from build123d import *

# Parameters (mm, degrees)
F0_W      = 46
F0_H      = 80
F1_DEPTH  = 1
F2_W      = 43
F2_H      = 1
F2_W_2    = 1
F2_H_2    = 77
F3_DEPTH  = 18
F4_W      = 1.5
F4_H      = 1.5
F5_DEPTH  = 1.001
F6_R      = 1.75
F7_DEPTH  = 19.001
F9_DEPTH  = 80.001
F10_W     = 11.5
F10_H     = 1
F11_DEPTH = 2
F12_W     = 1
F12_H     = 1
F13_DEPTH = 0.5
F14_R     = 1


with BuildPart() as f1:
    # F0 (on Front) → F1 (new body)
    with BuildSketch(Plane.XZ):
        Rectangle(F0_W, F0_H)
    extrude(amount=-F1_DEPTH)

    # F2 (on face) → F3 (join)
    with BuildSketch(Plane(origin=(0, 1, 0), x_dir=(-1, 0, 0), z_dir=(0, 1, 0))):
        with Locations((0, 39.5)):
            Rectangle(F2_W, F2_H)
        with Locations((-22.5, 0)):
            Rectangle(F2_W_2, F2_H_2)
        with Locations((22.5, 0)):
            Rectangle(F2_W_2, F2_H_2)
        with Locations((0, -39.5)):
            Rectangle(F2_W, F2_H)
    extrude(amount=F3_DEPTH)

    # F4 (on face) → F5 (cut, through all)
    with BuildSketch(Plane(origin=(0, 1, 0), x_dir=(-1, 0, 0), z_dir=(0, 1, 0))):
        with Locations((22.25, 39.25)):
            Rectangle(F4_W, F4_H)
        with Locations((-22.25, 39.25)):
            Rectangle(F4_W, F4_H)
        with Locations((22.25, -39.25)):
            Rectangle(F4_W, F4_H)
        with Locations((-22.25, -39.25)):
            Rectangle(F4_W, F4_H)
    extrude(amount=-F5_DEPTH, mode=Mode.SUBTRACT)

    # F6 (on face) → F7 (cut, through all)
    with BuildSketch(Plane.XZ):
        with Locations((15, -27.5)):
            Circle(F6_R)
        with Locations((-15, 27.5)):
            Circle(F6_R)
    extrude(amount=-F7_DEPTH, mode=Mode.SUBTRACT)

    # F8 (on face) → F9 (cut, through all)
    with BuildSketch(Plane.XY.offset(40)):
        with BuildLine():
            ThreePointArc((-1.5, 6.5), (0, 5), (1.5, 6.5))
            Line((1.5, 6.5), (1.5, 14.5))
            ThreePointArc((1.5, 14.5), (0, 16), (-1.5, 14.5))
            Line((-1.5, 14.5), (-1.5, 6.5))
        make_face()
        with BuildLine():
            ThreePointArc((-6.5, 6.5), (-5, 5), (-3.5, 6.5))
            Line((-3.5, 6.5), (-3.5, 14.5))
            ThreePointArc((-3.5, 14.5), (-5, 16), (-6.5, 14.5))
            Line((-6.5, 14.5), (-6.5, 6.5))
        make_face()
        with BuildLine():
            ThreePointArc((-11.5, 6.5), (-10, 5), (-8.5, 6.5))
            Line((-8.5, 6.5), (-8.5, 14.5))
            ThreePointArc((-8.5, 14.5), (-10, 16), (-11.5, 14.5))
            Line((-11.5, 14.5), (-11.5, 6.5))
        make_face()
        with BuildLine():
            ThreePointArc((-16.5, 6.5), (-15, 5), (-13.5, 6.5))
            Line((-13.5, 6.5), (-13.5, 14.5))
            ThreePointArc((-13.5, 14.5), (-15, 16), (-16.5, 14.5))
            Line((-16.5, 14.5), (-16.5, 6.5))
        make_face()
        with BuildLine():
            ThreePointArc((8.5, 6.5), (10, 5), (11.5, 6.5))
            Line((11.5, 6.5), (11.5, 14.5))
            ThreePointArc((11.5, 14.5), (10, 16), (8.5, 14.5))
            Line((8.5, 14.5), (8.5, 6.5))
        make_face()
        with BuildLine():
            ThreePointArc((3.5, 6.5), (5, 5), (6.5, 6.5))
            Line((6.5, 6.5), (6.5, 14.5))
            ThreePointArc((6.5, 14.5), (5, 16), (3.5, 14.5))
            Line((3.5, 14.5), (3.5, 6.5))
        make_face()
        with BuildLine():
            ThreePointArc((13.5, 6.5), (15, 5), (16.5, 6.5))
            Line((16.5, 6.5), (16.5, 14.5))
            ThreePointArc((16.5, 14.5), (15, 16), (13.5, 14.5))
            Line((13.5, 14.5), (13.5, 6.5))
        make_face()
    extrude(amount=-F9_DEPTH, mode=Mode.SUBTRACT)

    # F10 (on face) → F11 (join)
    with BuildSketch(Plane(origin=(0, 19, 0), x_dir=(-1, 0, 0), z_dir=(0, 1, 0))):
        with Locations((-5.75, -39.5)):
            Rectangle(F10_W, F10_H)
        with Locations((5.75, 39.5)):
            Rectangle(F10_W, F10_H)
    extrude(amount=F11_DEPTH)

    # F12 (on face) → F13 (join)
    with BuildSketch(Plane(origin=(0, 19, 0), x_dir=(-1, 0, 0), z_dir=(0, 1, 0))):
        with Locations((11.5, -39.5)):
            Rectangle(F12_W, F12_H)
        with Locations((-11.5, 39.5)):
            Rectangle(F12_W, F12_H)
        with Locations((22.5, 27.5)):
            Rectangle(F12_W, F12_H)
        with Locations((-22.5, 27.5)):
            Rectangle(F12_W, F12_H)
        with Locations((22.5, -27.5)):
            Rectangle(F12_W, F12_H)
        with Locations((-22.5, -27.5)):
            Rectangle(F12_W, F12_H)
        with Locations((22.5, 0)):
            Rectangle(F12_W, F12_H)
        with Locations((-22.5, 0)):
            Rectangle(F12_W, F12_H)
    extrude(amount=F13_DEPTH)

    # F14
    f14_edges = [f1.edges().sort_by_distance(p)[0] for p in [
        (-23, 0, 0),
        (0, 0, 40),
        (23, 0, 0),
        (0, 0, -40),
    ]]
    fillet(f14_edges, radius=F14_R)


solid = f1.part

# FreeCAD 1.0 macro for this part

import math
import FreeCAD as App
import Part
import Sketcher
from FreeCAD import Vector
Q = App.Units.Quantity


def edges_at(feature, points):
    """Names of the edges that pass closest to the given points."""
    edges = feature.Shape.Edges
    near = lambda p: min(range(len(edges)), key=lambda i: edges[i].distToShape(Part.Vertex(*p))[0])
    return sorted({f"Edge{near(p) + 1}" for p in points})

doc = App.newDocument("Part")
body = doc.addObject("PartDesign::Body", "Body")

sketch1 = body.newObject("Sketcher::SketchObject", "Sketch")
sketch1.AttachmentSupport = (doc.getObject("XZ_Plane"), [""])
sketch1.MapMode = "FlatFace"
sketch1.addGeometry([
    Part.LineSegment(Vector(-23, 40, 0), Vector(-23, -40, 0)),
    Part.LineSegment(Vector(-23, -40, 0), Vector(23, -40, 0)),
    Part.LineSegment(Vector(23, -40, 0), Vector(23, 40, 0)),
    Part.LineSegment(Vector(23, 40, 0), Vector(-23, 40, 0)),
], False)
sketch1.addConstraint([
    Sketcher.Constraint("Coincident", 0, 2, 1, 1),
    Sketcher.Constraint("Coincident", 1, 2, 2, 1),
    Sketcher.Constraint("Coincident", 2, 2, 3, 1),
    Sketcher.Constraint("Coincident", 3, 2, 0, 1),
    Sketcher.Constraint("Vertical", 0),
    Sketcher.Constraint("Horizontal", 1),
    Sketcher.Constraint("Vertical", 2),
    Sketcher.Constraint("Horizontal", 3),
    Sketcher.Constraint("Symmetric", 0, 2, 2, 2, -1, 1),
    Sketcher.Constraint("DistanceX", 1, 1, 1, 2, Q("46 mm")),
    Sketcher.Constraint("DistanceY", 0, 2, 0, 1, Q("80 mm")),
])
pad1 = body.newObject("PartDesign::Pad", "Pad")
pad1.Profile = sketch1
pad1.Length = 1
pad1.Reversed = True

sketch2 = body.newObject("Sketcher::SketchObject", "Sketch001")
sketch2.AttachmentSupport = (doc.getObject("XZ_Plane"), [""])
sketch2.MapMode = "FlatFace"
sketch2.AttachmentOffset = App.Placement(Vector(0, 0, -1), App.Rotation())
sketch2.addGeometry([
    Part.LineSegment(Vector(21.5, 40, 0), Vector(21.5, 39, 0)),
    Part.LineSegment(Vector(21.5, 39, 0), Vector(-21.5, 39, 0)),
    Part.LineSegment(Vector(-21.5, 39, 0), Vector(-21.5, 40, 0)),
    Part.LineSegment(Vector(-21.5, 40, 0), Vector(21.5, 40, 0)),
    Part.LineSegment(Vector(23, 38.5, 0), Vector(23, -38.5, 0)),
    Part.LineSegment(Vector(23, -38.5, 0), Vector(22, -38.5, 0)),
    Part.LineSegment(Vector(22, -38.5, 0), Vector(22, 38.5, 0)),
    Part.LineSegment(Vector(22, 38.5, 0), Vector(23, 38.5, 0)),
    Part.LineSegment(Vector(-22, 38.5, 0), Vector(-22, -38.5, 0)),
    Part.LineSegment(Vector(-22, -38.5, 0), Vector(-23, -38.5, 0)),
    Part.LineSegment(Vector(-23, -38.5, 0), Vector(-23, 38.5, 0)),
    Part.LineSegment(Vector(-23, 38.5, 0), Vector(-22, 38.5, 0)),
    Part.LineSegment(Vector(21.5, -39, 0), Vector(21.5, -40, 0)),
    Part.LineSegment(Vector(21.5, -40, 0), Vector(-21.5, -40, 0)),
    Part.LineSegment(Vector(-21.5, -40, 0), Vector(-21.5, -39, 0)),
    Part.LineSegment(Vector(-21.5, -39, 0), Vector(21.5, -39, 0)),
], False)
sketch2.addConstraint([
    Sketcher.Constraint("Coincident", 0, 2, 1, 1),
    Sketcher.Constraint("Coincident", 1, 2, 2, 1),
    Sketcher.Constraint("Coincident", 2, 2, 3, 1),
    Sketcher.Constraint("Coincident", 3, 2, 0, 1),
    Sketcher.Constraint("Coincident", 4, 2, 5, 1),
    Sketcher.Constraint("Coincident", 5, 2, 6, 1),
    Sketcher.Constraint("Coincident", 6, 2, 7, 1),
    Sketcher.Constraint("Coincident", 7, 2, 4, 1),
    Sketcher.Constraint("Coincident", 8, 2, 9, 1),
    Sketcher.Constraint("Coincident", 9, 2, 10, 1),
    Sketcher.Constraint("Coincident", 10, 2, 11, 1),
    Sketcher.Constraint("Coincident", 11, 2, 8, 1),
    Sketcher.Constraint("Coincident", 12, 2, 13, 1),
    Sketcher.Constraint("Coincident", 13, 2, 14, 1),
    Sketcher.Constraint("Coincident", 14, 2, 15, 1),
    Sketcher.Constraint("Coincident", 15, 2, 12, 1),
    Sketcher.Constraint("Vertical", 0),
    Sketcher.Constraint("Horizontal", 1),
    Sketcher.Constraint("Vertical", 2),
    Sketcher.Constraint("Horizontal", 3),
    Sketcher.Constraint("Vertical", 4),
    Sketcher.Constraint("Horizontal", 5),
    Sketcher.Constraint("Vertical", 6),
    Sketcher.Constraint("Horizontal", 7),
    Sketcher.Constraint("Vertical", 8),
    Sketcher.Constraint("Horizontal", 9),
    Sketcher.Constraint("Vertical", 10),
    Sketcher.Constraint("Horizontal", 11),
    Sketcher.Constraint("Vertical", 12),
    Sketcher.Constraint("Horizontal", 13),
    Sketcher.Constraint("Vertical", 14),
    Sketcher.Constraint("Horizontal", 15),
    Sketcher.Constraint("Symmetric", 6, 2, 8, 2, -1, 1),
    Sketcher.Constraint("Symmetric", 4, 2, 10, 2, -1, 1),
    Sketcher.Constraint("Symmetric", 2, 2, 12, 2, -1, 1),
    Sketcher.Constraint("Symmetric", 0, 2, 14, 2, -1, 1),
    Sketcher.Constraint("Horizontal", 5, 2, 8, 2),
    Sketcher.Constraint("Vertical", 3, 2, 12, 2),
    Sketcher.Constraint("Equal", 11, 0),
    Sketcher.Constraint("DistanceX", 1, 2, 1, 1, Q("43 mm")),
    Sketcher.Constraint("DistanceX", 5, 2, 5, 1, Q("1 mm")),
    Sketcher.Constraint("DistanceY", 4, 2, 4, 1, Q("77 mm")),
    Sketcher.Constraint("DistanceY", -1, 1, 0, 2, Q("39 mm")),
    Sketcher.Constraint("DistanceX", -1, 1, 4, 2, Q("23 mm")),
])
pad2 = body.newObject("PartDesign::Pad", "Pad001")
pad2.Profile = sketch2
pad2.Length = 18
pad2.Reversed = True

sketch3 = body.newObject("Sketcher::SketchObject", "Sketch002")
sketch3.AttachmentSupport = (doc.getObject("XZ_Plane"), [""])
sketch3.MapMode = "FlatFace"
sketch3.AttachmentOffset = App.Placement(Vector(0, 0, -1), App.Rotation())
sketch3.addGeometry([
    Part.LineSegment(Vector(-21.5, 40, 0), Vector(-21.5, 38.5, 0)),
    Part.LineSegment(Vector(-21.5, 38.5, 0), Vector(-23, 38.5, 0)),
    Part.LineSegment(Vector(-23, 38.5, 0), Vector(-23, 40, 0)),
    Part.LineSegment(Vector(-23, 40, 0), Vector(-21.5, 40, 0)),
    Part.LineSegment(Vector(23, 40, 0), Vector(23, 38.5, 0)),
    Part.LineSegment(Vector(23, 38.5, 0), Vector(21.5, 38.5, 0)),
    Part.LineSegment(Vector(21.5, 38.5, 0), Vector(21.5, 40, 0)),
    Part.LineSegment(Vector(21.5, 40, 0), Vector(23, 40, 0)),
    Part.LineSegment(Vector(-21.5, -38.5, 0), Vector(-21.5, -40, 0)),
    Part.LineSegment(Vector(-21.5, -40, 0), Vector(-23, -40, 0)),
    Part.LineSegment(Vector(-23, -40, 0), Vector(-23, -38.5, 0)),
    Part.LineSegment(Vector(-23, -38.5, 0), Vector(-21.5, -38.5, 0)),
    Part.LineSegment(Vector(23, -38.5, 0), Vector(23, -40, 0)),
    Part.LineSegment(Vector(23, -40, 0), Vector(21.5, -40, 0)),
    Part.LineSegment(Vector(21.5, -40, 0), Vector(21.5, -38.5, 0)),
    Part.LineSegment(Vector(21.5, -38.5, 0), Vector(23, -38.5, 0)),
], False)
sketch3.addConstraint([
    Sketcher.Constraint("Coincident", 0, 2, 1, 1),
    Sketcher.Constraint("Coincident", 1, 2, 2, 1),
    Sketcher.Constraint("Coincident", 2, 2, 3, 1),
    Sketcher.Constraint("Coincident", 3, 2, 0, 1),
    Sketcher.Constraint("Coincident", 4, 2, 5, 1),
    Sketcher.Constraint("Coincident", 5, 2, 6, 1),
    Sketcher.Constraint("Coincident", 6, 2, 7, 1),
    Sketcher.Constraint("Coincident", 7, 2, 4, 1),
    Sketcher.Constraint("Coincident", 8, 2, 9, 1),
    Sketcher.Constraint("Coincident", 9, 2, 10, 1),
    Sketcher.Constraint("Coincident", 10, 2, 11, 1),
    Sketcher.Constraint("Coincident", 11, 2, 8, 1),
    Sketcher.Constraint("Coincident", 12, 2, 13, 1),
    Sketcher.Constraint("Coincident", 13, 2, 14, 1),
    Sketcher.Constraint("Coincident", 14, 2, 15, 1),
    Sketcher.Constraint("Coincident", 15, 2, 12, 1),
    Sketcher.Constraint("Vertical", 0),
    Sketcher.Constraint("Horizontal", 1),
    Sketcher.Constraint("Vertical", 2),
    Sketcher.Constraint("Horizontal", 3),
    Sketcher.Constraint("Vertical", 4),
    Sketcher.Constraint("Horizontal", 5),
    Sketcher.Constraint("Vertical", 6),
    Sketcher.Constraint("Horizontal", 7),
    Sketcher.Constraint("Vertical", 8),
    Sketcher.Constraint("Horizontal", 9),
    Sketcher.Constraint("Vertical", 10),
    Sketcher.Constraint("Horizontal", 11),
    Sketcher.Constraint("Vertical", 12),
    Sketcher.Constraint("Horizontal", 13),
    Sketcher.Constraint("Vertical", 14),
    Sketcher.Constraint("Horizontal", 15),
    Sketcher.Constraint("Symmetric", 6, 2, 8, 2, -1, 1),
    Sketcher.Constraint("Symmetric", 4, 2, 10, 2, -1, 1),
    Sketcher.Constraint("Symmetric", 2, 2, 12, 2, -1, 1),
    Sketcher.Constraint("Symmetric", 0, 2, 14, 2, -1, 1),
    Sketcher.Constraint("Symmetric", 1, 2, 4, 2, -2),
    Sketcher.Constraint("Symmetric", 3, 2, 6, 2, -2),
    Sketcher.Constraint("Equal", 15, 0),
    Sketcher.Constraint("DistanceX", 1, 2, 1, 1, Q("1.5 mm")),
    Sketcher.Constraint("DistanceX", 1, 2, -1, 1, Q("23 mm")),
    Sketcher.Constraint("DistanceY", -1, 1, 2, 2, Q("40 mm")),
])
pocket1 = body.newObject("PartDesign::Pocket", "Pocket")
pocket1.Profile = sketch3
pocket1.Type = "ThroughAll"
pocket1.Reversed = True

sketch4 = body.newObject("Sketcher::SketchObject", "Sketch003")
sketch4.AttachmentSupport = (doc.getObject("XZ_Plane"), [""])
sketch4.MapMode = "FlatFace"
sketch4.addGeometry([
    Part.Circle(Vector(15, -27.5, 0), Vector(0, 0, 1), 1.8),
    Part.Circle(Vector(-15, 27.5, 0), Vector(0, 0, 1), 1.8),
], False)
sketch4.addConstraint([
    Sketcher.Constraint("Equal", 0, 1),
    Sketcher.Constraint("Symmetric", 0, 3, 1, 3, -1, 1),
    Sketcher.Constraint("Diameter", 0, Q("3.5 mm")),
    Sketcher.Constraint("DistanceX", -1, 1, 0, 3, Q("15 mm")),
    Sketcher.Constraint("DistanceY", 0, 3, 1, 3, Q("55 mm")),
])
pocket2 = body.newObject("PartDesign::Pocket", "Pocket001")
pocket2.Profile = sketch4
pocket2.Type = "ThroughAll"

sketch5 = body.newObject("Sketcher::SketchObject", "Sketch004")
sketch5.AttachmentSupport = (doc.getObject("XY_Plane"), [""])
sketch5.MapMode = "FlatFace"
sketch5.AttachmentOffset = App.Placement(Vector(0, 0, 40), App.Rotation())
sketch5.addGeometry([
    Part.ArcOfCircle(Part.Circle(Vector(0, 6.5, 0), Vector(0, 0, 1), 1.5), math.radians(180), math.radians(360)),
    Part.LineSegment(Vector(1.5, 6.5, 0), Vector(1.5, 14.5, 0)),
    Part.ArcOfCircle(Part.Circle(Vector(0, 14.5, 0), Vector(0, 0, 1), 1.5), math.radians(0), math.radians(180)),
    Part.LineSegment(Vector(-1.5, 14.5, 0), Vector(-1.5, 6.5, 0)),
    Part.ArcOfCircle(Part.Circle(Vector(-5, 6.5, 0), Vector(0, 0, 1), 1.5), math.radians(180), math.radians(360)),
    Part.LineSegment(Vector(-3.5, 6.5, 0), Vector(-3.5, 14.5, 0)),
    Part.ArcOfCircle(Part.Circle(Vector(-5, 14.5, 0), Vector(0, 0, 1), 1.5), math.radians(0), math.radians(180)),
    Part.LineSegment(Vector(-6.5, 14.5, 0), Vector(-6.5, 6.5, 0)),
    Part.ArcOfCircle(Part.Circle(Vector(-10, 6.5, 0), Vector(0, 0, 1), 1.5), math.radians(180), math.radians(360)),
    Part.LineSegment(Vector(-8.5, 6.5, 0), Vector(-8.5, 14.5, 0)),
    Part.ArcOfCircle(Part.Circle(Vector(-10, 14.5, 0), Vector(0, 0, 1), 1.5), math.radians(0), math.radians(180)),
    Part.LineSegment(Vector(-11.5, 14.5, 0), Vector(-11.5, 6.5, 0)),
    Part.ArcOfCircle(Part.Circle(Vector(-15, 6.5, 0), Vector(0, 0, 1), 1.5), math.radians(180), math.radians(360)),
    Part.LineSegment(Vector(-13.5, 6.5, 0), Vector(-13.5, 14.5, 0)),
    Part.ArcOfCircle(Part.Circle(Vector(-15, 14.5, 0), Vector(0, 0, 1), 1.5), math.radians(0), math.radians(180)),
    Part.LineSegment(Vector(-16.5, 14.5, 0), Vector(-16.5, 6.5, 0)),
    Part.ArcOfCircle(Part.Circle(Vector(10, 6.5, 0), Vector(0, 0, 1), 1.5), math.radians(180), math.radians(360)),
    Part.LineSegment(Vector(11.5, 6.5, 0), Vector(11.5, 14.5, 0)),
    Part.ArcOfCircle(Part.Circle(Vector(10, 14.5, 0), Vector(0, 0, 1), 1.5), math.radians(0), math.radians(180)),
    Part.LineSegment(Vector(8.5, 14.5, 0), Vector(8.5, 6.5, 0)),
    Part.ArcOfCircle(Part.Circle(Vector(5, 6.5, 0), Vector(0, 0, 1), 1.5), math.radians(180), math.radians(360)),
    Part.LineSegment(Vector(6.5, 6.5, 0), Vector(6.5, 14.5, 0)),
    Part.ArcOfCircle(Part.Circle(Vector(5, 14.5, 0), Vector(0, 0, 1), 1.5), math.radians(0), math.radians(180)),
    Part.LineSegment(Vector(3.5, 14.5, 0), Vector(3.5, 6.5, 0)),
    Part.ArcOfCircle(Part.Circle(Vector(15, 6.5, 0), Vector(0, 0, 1), 1.5), math.radians(180), math.radians(360)),
    Part.LineSegment(Vector(16.5, 6.5, 0), Vector(16.5, 14.5, 0)),
    Part.ArcOfCircle(Part.Circle(Vector(15, 14.5, 0), Vector(0, 0, 1), 1.5), math.radians(0), math.radians(180)),
    Part.LineSegment(Vector(13.5, 14.5, 0), Vector(13.5, 6.5, 0)),
], False)
sketch5.addConstraint([
    Sketcher.Constraint("Tangent", 0, 2, 1, 1),
    Sketcher.Constraint("Tangent", 1, 2, 2, 1),
    Sketcher.Constraint("Tangent", 2, 2, 3, 1),
    Sketcher.Constraint("Tangent", 3, 2, 0, 1),
    Sketcher.Constraint("Tangent", 4, 2, 5, 1),
    Sketcher.Constraint("Tangent", 5, 2, 6, 1),
    Sketcher.Constraint("Tangent", 6, 2, 7, 1),
    Sketcher.Constraint("Tangent", 7, 2, 4, 1),
    Sketcher.Constraint("Tangent", 8, 2, 9, 1),
    Sketcher.Constraint("Tangent", 9, 2, 10, 1),
    Sketcher.Constraint("Tangent", 10, 2, 11, 1),
    Sketcher.Constraint("Tangent", 11, 2, 8, 1),
    Sketcher.Constraint("Tangent", 12, 2, 13, 1),
    Sketcher.Constraint("Tangent", 13, 2, 14, 1),
    Sketcher.Constraint("Tangent", 14, 2, 15, 1),
    Sketcher.Constraint("Tangent", 15, 2, 12, 1),
    Sketcher.Constraint("Tangent", 16, 2, 17, 1),
    Sketcher.Constraint("Tangent", 17, 2, 18, 1),
    Sketcher.Constraint("Tangent", 18, 2, 19, 1),
    Sketcher.Constraint("Tangent", 19, 2, 16, 1),
    Sketcher.Constraint("Tangent", 20, 2, 21, 1),
    Sketcher.Constraint("Tangent", 21, 2, 22, 1),
    Sketcher.Constraint("Tangent", 22, 2, 23, 1),
    Sketcher.Constraint("Tangent", 23, 2, 20, 1),
    Sketcher.Constraint("Tangent", 24, 2, 25, 1),
    Sketcher.Constraint("Tangent", 25, 2, 26, 1),
    Sketcher.Constraint("Tangent", 26, 2, 27, 1),
    Sketcher.Constraint("Tangent", 27, 2, 24, 1),
    Sketcher.Constraint("Vertical", 1),
    Sketcher.Constraint("Vertical", 3),
    Sketcher.Constraint("Vertical", 5),
    Sketcher.Constraint("Vertical", 7),
    Sketcher.Constraint("Vertical", 9),
    Sketcher.Constraint("Vertical", 11),
    Sketcher.Constraint("Vertical", 13),
    Sketcher.Constraint("Vertical", 15),
    Sketcher.Constraint("Vertical", 17),
    Sketcher.Constraint("Vertical", 19),
    Sketcher.Constraint("Vertical", 21),
    Sketcher.Constraint("Vertical", 23),
    Sketcher.Constraint("Vertical", 25),
    Sketcher.Constraint("Vertical", 27),
    Sketcher.Constraint("Equal", 2, 4),
    Sketcher.Constraint("Equal", 6, 8),
    Sketcher.Constraint("Equal", 10, 12),
    Sketcher.Constraint("Equal", 14, 16),
    Sketcher.Constraint("Equal", 18, 20),
    Sketcher.Constraint("Equal", 22, 24),
    Sketcher.Constraint("Symmetric", 8, 3, 16, 3, -2),
    Sketcher.Constraint("Symmetric", 4, 3, 20, 3, -2),
    Sketcher.Constraint("Symmetric", 12, 3, 24, 3, -2),
    Sketcher.Constraint("PointOnObject", 0, 3, -2),
    Sketcher.Constraint("Horizontal", 0, 3, 4, 3),
    Sketcher.Constraint("Horizontal", 2, 3, 6, 3),
    Sketcher.Constraint("Horizontal", 4, 3, 8, 3),
    Sketcher.Constraint("Horizontal", 6, 3, 10, 3),
    Sketcher.Constraint("Horizontal", 8, 3, 12, 3),
    Sketcher.Constraint("Horizontal", 10, 3, 14, 3),
    Sketcher.Constraint("Horizontal", 14, 3, 18, 3),
    Sketcher.Constraint("Horizontal", 18, 3, 22, 3),
    Sketcher.Constraint("Horizontal", 22, 3, 26, 3),
    Sketcher.Constraint("Radius", 0, Q("1.5 mm")),
    Sketcher.Constraint("DistanceY", 1, 1, 1, 2, Q("8 mm")),
    Sketcher.Constraint("DistanceX", 4, 3, -1, 1, Q("5 mm")),
    Sketcher.Constraint("DistanceX", 8, 3, -1, 1, Q("10 mm")),
    Sketcher.Constraint("DistanceX", 12, 3, -1, 1, Q("15 mm")),
    Sketcher.Constraint("DistanceY", -1, 1, 0, 3, Q("6.5 mm")),
])
pocket3 = body.newObject("PartDesign::Pocket", "Pocket002")
pocket3.Profile = sketch5
pocket3.Type = "ThroughAll"

sketch6 = body.newObject("Sketcher::SketchObject", "Sketch005")
sketch6.AttachmentSupport = (doc.getObject("XZ_Plane"), [""])
sketch6.MapMode = "FlatFace"
sketch6.AttachmentOffset = App.Placement(Vector(0, 0, -19), App.Rotation())
sketch6.addGeometry([
    Part.LineSegment(Vector(11.5, -39, 0), Vector(11.5, -40, 0)),
    Part.LineSegment(Vector(11.5, -40, 0), Vector(0, -40, 0)),
    Part.LineSegment(Vector(0, -40, 0), Vector(0, -39, 0)),
    Part.LineSegment(Vector(0, -39, 0), Vector(11.5, -39, 0)),
    Part.LineSegment(Vector(0, 40, 0), Vector(0, 39, 0)),
    Part.LineSegment(Vector(0, 39, 0), Vector(-11.5, 39, 0)),
    Part.LineSegment(Vector(-11.5, 39, 0), Vector(-11.5, 40, 0)),
    Part.LineSegment(Vector(-11.5, 40, 0), Vector(0, 40, 0)),
], False)
sketch6.addConstraint([
    Sketcher.Constraint("Coincident", 0, 2, 1, 1),
    Sketcher.Constraint("Coincident", 1, 2, 2, 1),
    Sketcher.Constraint("Coincident", 2, 2, 3, 1),
    Sketcher.Constraint("Coincident", 3, 2, 0, 1),
    Sketcher.Constraint("Coincident", 4, 2, 5, 1),
    Sketcher.Constraint("Coincident", 5, 2, 6, 1),
    Sketcher.Constraint("Coincident", 6, 2, 7, 1),
    Sketcher.Constraint("Coincident", 7, 2, 4, 1),
    Sketcher.Constraint("Vertical", 0),
    Sketcher.Constraint("Horizontal", 1),
    Sketcher.Constraint("Vertical", 2),
    Sketcher.Constraint("Horizontal", 3),
    Sketcher.Constraint("Vertical", 4),
    Sketcher.Constraint("Horizontal", 5),
    Sketcher.Constraint("Vertical", 6),
    Sketcher.Constraint("Horizontal", 7),
    Sketcher.Constraint("Symmetric", 2, 2, 4, 2, -1, 1),
    Sketcher.Constraint("Symmetric", 0, 2, 6, 2, -1, 1),
    Sketcher.Constraint("PointOnObject", 1, 2, -2),
    Sketcher.Constraint("DistanceY", 0, 2, 0, 1, Q("1 mm")),
    Sketcher.Constraint("DistanceX", 1, 2, 1, 1, Q("11.5 mm")),
    Sketcher.Constraint("DistanceY", 0, 2, -1, 1, Q("40 mm")),
])
pad3 = body.newObject("PartDesign::Pad", "Pad002")
pad3.Profile = sketch6
pad3.Length = 2
pad3.Reversed = True

sketch7 = body.newObject("Sketcher::SketchObject", "Sketch006")
sketch7.AttachmentSupport = (doc.getObject("XZ_Plane"), [""])
sketch7.MapMode = "FlatFace"
sketch7.AttachmentOffset = App.Placement(Vector(0, 0, -19), App.Rotation())
sketch7.addGeometry([
    Part.LineSegment(Vector(-11, -39, 0), Vector(-11, -40, 0)),
    Part.LineSegment(Vector(-11, -40, 0), Vector(-12, -40, 0)),
    Part.LineSegment(Vector(-12, -40, 0), Vector(-12, -39, 0)),
    Part.LineSegment(Vector(-12, -39, 0), Vector(-11, -39, 0)),
    Part.LineSegment(Vector(12, 40, 0), Vector(12, 39, 0)),
    Part.LineSegment(Vector(12, 39, 0), Vector(11, 39, 0)),
    Part.LineSegment(Vector(11, 39, 0), Vector(11, 40, 0)),
    Part.LineSegment(Vector(11, 40, 0), Vector(12, 40, 0)),
    Part.LineSegment(Vector(-22, 28, 0), Vector(-22, 27, 0)),
    Part.LineSegment(Vector(-22, 27, 0), Vector(-23, 27, 0)),
    Part.LineSegment(Vector(-23, 27, 0), Vector(-23, 28, 0)),
    Part.LineSegment(Vector(-23, 28, 0), Vector(-22, 28, 0)),
    Part.LineSegment(Vector(23, 28, 0), Vector(23, 27, 0)),
    Part.LineSegment(Vector(23, 27, 0), Vector(22, 27, 0)),
    Part.LineSegment(Vector(22, 27, 0), Vector(22, 28, 0)),
    Part.LineSegment(Vector(22, 28, 0), Vector(23, 28, 0)),
    Part.LineSegment(Vector(-22, -27, 0), Vector(-22, -28, 0)),
    Part.LineSegment(Vector(-22, -28, 0), Vector(-23, -28, 0)),
    Part.LineSegment(Vector(-23, -28, 0), Vector(-23, -27, 0)),
    Part.LineSegment(Vector(-23, -27, 0), Vector(-22, -27, 0)),
    Part.LineSegment(Vector(23, -27, 0), Vector(23, -28, 0)),
    Part.LineSegment(Vector(23, -28, 0), Vector(22, -28, 0)),
    Part.LineSegment(Vector(22, -28, 0), Vector(22, -27, 0)),
    Part.LineSegment(Vector(22, -27, 0), Vector(23, -27, 0)),
    Part.LineSegment(Vector(-22, 0.5, 0), Vector(-22, -0.5, 0)),
    Part.LineSegment(Vector(-22, -0.5, 0), Vector(-23, -0.5, 0)),
    Part.LineSegment(Vector(-23, -0.5, 0), Vector(-23, 0.5, 0)),
    Part.LineSegment(Vector(-23, 0.5, 0), Vector(-22, 0.5, 0)),
    Part.LineSegment(Vector(23, 0.5, 0), Vector(23, -0.5, 0)),
    Part.LineSegment(Vector(23, -0.5, 0), Vector(22, -0.5, 0)),
    Part.LineSegment(Vector(22, -0.5, 0), Vector(22, 0.5, 0)),
    Part.LineSegment(Vector(22, 0.5, 0), Vector(23, 0.5, 0)),
], False)
sketch7.addConstraint([
    Sketcher.Constraint("Coincident", 0, 2, 1, 1),
    Sketcher.Constraint("Coincident", 1, 2, 2, 1),
    Sketcher.Constraint("Coincident", 2, 2, 3, 1),
    Sketcher.Constraint("Coincident", 3, 2, 0, 1),
    Sketcher.Constraint("Coincident", 4, 2, 5, 1),
    Sketcher.Constraint("Coincident", 5, 2, 6, 1),
    Sketcher.Constraint("Coincident", 6, 2, 7, 1),
    Sketcher.Constraint("Coincident", 7, 2, 4, 1),
    Sketcher.Constraint("Coincident", 8, 2, 9, 1),
    Sketcher.Constraint("Coincident", 9, 2, 10, 1),
    Sketcher.Constraint("Coincident", 10, 2, 11, 1),
    Sketcher.Constraint("Coincident", 11, 2, 8, 1),
    Sketcher.Constraint("Coincident", 12, 2, 13, 1),
    Sketcher.Constraint("Coincident", 13, 2, 14, 1),
    Sketcher.Constraint("Coincident", 14, 2, 15, 1),
    Sketcher.Constraint("Coincident", 15, 2, 12, 1),
    Sketcher.Constraint("Coincident", 16, 2, 17, 1),
    Sketcher.Constraint("Coincident", 17, 2, 18, 1),
    Sketcher.Constraint("Coincident", 18, 2, 19, 1),
    Sketcher.Constraint("Coincident", 19, 2, 16, 1),
    Sketcher.Constraint("Coincident", 20, 2, 21, 1),
    Sketcher.Constraint("Coincident", 21, 2, 22, 1),
    Sketcher.Constraint("Coincident", 22, 2, 23, 1),
    Sketcher.Constraint("Coincident", 23, 2, 20, 1),
    Sketcher.Constraint("Coincident", 24, 2, 25, 1),
    Sketcher.Constraint("Coincident", 25, 2, 26, 1),
    Sketcher.Constraint("Coincident", 26, 2, 27, 1),
    Sketcher.Constraint("Coincident", 27, 2, 24, 1),
    Sketcher.Constraint("Coincident", 28, 2, 29, 1),
    Sketcher.Constraint("Coincident", 29, 2, 30, 1),
    Sketcher.Constraint("Coincident", 30, 2, 31, 1),
    Sketcher.Constraint("Coincident", 31, 2, 28, 1),
    Sketcher.Constraint("Vertical", 0),
    Sketcher.Constraint("Horizontal", 1),
    Sketcher.Constraint("Vertical", 2),
    Sketcher.Constraint("Horizontal", 3),
    Sketcher.Constraint("Vertical", 4),
    Sketcher.Constraint("Horizontal", 5),
    Sketcher.Constraint("Vertical", 6),
    Sketcher.Constraint("Horizontal", 7),
    Sketcher.Constraint("Vertical", 8),
    Sketcher.Constraint("Horizontal", 9),
    Sketcher.Constraint("Vertical", 10),
    Sketcher.Constraint("Horizontal", 11),
    Sketcher.Constraint("Vertical", 12),
    Sketcher.Constraint("Horizontal", 13),
    Sketcher.Constraint("Vertical", 14),
    Sketcher.Constraint("Horizontal", 15),
    Sketcher.Constraint("Vertical", 16),
    Sketcher.Constraint("Horizontal", 17),
    Sketcher.Constraint("Vertical", 18),
    Sketcher.Constraint("Horizontal", 19),
    Sketcher.Constraint("Vertical", 20),
    Sketcher.Constraint("Horizontal", 21),
    Sketcher.Constraint("Vertical", 22),
    Sketcher.Constraint("Horizontal", 23),
    Sketcher.Constraint("Vertical", 24),
    Sketcher.Constraint("Horizontal", 25),
    Sketcher.Constraint("Vertical", 26),
    Sketcher.Constraint("Horizontal", 27),
    Sketcher.Constraint("Vertical", 28),
    Sketcher.Constraint("Horizontal", 29),
    Sketcher.Constraint("Vertical", 30),
    Sketcher.Constraint("Horizontal", 31),
    Sketcher.Constraint("Symmetric", 2, 2, 4, 2, -1, 1),
    Sketcher.Constraint("Symmetric", 0, 2, 6, 2, -1, 1),
    Sketcher.Constraint("Symmetric", 14, 2, 16, 2, -1, 1),
    Sketcher.Constraint("Symmetric", 12, 2, 18, 2, -1, 1),
    Sketcher.Constraint("Symmetric", 10, 2, 20, 2, -1, 1),
    Sketcher.Constraint("Symmetric", 8, 2, 22, 2, -1, 1),
    Sketcher.Constraint("Symmetric", 26, 2, 28, 2, -1, 1),
    Sketcher.Constraint("Symmetric", 24, 2, 30, 2, -1, 1),
    Sketcher.Constraint("Symmetric", 9, 2, 12, 2, -2),
    Sketcher.Constraint("Symmetric", 11, 2, 14, 2, -2),
    Sketcher.Constraint("Horizontal", 25, 2, 28, 2),
    Sketcher.Constraint("Vertical", 19, 2, 24, 2),
    Sketcher.Constraint("Vertical", 18, 2, 25, 2),
    Sketcher.Constraint("Equal", 7, 9),
    Sketcher.Constraint("Equal", 31, 0),
    Sketcher.Constraint("Equal", 6, 8),
    Sketcher.Constraint("Equal", 22, 24),
    Sketcher.Constraint("DistanceX", 1, 2, 1, 1, Q("1 mm")),
    Sketcher.Constraint("DistanceX", 0, 2, -1, 1, Q("11 mm")),
    Sketcher.Constraint("DistanceY", 0, 2, -1, 1, Q("40 mm")),
    Sketcher.Constraint("DistanceX", 8, 2, -1, 1, Q("22 mm")),
    Sketcher.Constraint("DistanceY", -1, 1, 8, 2, Q("27 mm")),
])
pad4 = body.newObject("PartDesign::Pad", "Pad003")
pad4.Profile = sketch7
pad4.Length = 0.5
pad4.Reversed = True
doc.recompute()

fillet = body.newObject("PartDesign::Fillet", "Fillet")
fillet.Base = (pad4, edges_at(pad4, [
    (-23, 0, 0),
    (0, 0, 40),
    (23, 0, 0),
    (0, 0, -40),
]))
fillet.Radius = 1

doc.recompute()
